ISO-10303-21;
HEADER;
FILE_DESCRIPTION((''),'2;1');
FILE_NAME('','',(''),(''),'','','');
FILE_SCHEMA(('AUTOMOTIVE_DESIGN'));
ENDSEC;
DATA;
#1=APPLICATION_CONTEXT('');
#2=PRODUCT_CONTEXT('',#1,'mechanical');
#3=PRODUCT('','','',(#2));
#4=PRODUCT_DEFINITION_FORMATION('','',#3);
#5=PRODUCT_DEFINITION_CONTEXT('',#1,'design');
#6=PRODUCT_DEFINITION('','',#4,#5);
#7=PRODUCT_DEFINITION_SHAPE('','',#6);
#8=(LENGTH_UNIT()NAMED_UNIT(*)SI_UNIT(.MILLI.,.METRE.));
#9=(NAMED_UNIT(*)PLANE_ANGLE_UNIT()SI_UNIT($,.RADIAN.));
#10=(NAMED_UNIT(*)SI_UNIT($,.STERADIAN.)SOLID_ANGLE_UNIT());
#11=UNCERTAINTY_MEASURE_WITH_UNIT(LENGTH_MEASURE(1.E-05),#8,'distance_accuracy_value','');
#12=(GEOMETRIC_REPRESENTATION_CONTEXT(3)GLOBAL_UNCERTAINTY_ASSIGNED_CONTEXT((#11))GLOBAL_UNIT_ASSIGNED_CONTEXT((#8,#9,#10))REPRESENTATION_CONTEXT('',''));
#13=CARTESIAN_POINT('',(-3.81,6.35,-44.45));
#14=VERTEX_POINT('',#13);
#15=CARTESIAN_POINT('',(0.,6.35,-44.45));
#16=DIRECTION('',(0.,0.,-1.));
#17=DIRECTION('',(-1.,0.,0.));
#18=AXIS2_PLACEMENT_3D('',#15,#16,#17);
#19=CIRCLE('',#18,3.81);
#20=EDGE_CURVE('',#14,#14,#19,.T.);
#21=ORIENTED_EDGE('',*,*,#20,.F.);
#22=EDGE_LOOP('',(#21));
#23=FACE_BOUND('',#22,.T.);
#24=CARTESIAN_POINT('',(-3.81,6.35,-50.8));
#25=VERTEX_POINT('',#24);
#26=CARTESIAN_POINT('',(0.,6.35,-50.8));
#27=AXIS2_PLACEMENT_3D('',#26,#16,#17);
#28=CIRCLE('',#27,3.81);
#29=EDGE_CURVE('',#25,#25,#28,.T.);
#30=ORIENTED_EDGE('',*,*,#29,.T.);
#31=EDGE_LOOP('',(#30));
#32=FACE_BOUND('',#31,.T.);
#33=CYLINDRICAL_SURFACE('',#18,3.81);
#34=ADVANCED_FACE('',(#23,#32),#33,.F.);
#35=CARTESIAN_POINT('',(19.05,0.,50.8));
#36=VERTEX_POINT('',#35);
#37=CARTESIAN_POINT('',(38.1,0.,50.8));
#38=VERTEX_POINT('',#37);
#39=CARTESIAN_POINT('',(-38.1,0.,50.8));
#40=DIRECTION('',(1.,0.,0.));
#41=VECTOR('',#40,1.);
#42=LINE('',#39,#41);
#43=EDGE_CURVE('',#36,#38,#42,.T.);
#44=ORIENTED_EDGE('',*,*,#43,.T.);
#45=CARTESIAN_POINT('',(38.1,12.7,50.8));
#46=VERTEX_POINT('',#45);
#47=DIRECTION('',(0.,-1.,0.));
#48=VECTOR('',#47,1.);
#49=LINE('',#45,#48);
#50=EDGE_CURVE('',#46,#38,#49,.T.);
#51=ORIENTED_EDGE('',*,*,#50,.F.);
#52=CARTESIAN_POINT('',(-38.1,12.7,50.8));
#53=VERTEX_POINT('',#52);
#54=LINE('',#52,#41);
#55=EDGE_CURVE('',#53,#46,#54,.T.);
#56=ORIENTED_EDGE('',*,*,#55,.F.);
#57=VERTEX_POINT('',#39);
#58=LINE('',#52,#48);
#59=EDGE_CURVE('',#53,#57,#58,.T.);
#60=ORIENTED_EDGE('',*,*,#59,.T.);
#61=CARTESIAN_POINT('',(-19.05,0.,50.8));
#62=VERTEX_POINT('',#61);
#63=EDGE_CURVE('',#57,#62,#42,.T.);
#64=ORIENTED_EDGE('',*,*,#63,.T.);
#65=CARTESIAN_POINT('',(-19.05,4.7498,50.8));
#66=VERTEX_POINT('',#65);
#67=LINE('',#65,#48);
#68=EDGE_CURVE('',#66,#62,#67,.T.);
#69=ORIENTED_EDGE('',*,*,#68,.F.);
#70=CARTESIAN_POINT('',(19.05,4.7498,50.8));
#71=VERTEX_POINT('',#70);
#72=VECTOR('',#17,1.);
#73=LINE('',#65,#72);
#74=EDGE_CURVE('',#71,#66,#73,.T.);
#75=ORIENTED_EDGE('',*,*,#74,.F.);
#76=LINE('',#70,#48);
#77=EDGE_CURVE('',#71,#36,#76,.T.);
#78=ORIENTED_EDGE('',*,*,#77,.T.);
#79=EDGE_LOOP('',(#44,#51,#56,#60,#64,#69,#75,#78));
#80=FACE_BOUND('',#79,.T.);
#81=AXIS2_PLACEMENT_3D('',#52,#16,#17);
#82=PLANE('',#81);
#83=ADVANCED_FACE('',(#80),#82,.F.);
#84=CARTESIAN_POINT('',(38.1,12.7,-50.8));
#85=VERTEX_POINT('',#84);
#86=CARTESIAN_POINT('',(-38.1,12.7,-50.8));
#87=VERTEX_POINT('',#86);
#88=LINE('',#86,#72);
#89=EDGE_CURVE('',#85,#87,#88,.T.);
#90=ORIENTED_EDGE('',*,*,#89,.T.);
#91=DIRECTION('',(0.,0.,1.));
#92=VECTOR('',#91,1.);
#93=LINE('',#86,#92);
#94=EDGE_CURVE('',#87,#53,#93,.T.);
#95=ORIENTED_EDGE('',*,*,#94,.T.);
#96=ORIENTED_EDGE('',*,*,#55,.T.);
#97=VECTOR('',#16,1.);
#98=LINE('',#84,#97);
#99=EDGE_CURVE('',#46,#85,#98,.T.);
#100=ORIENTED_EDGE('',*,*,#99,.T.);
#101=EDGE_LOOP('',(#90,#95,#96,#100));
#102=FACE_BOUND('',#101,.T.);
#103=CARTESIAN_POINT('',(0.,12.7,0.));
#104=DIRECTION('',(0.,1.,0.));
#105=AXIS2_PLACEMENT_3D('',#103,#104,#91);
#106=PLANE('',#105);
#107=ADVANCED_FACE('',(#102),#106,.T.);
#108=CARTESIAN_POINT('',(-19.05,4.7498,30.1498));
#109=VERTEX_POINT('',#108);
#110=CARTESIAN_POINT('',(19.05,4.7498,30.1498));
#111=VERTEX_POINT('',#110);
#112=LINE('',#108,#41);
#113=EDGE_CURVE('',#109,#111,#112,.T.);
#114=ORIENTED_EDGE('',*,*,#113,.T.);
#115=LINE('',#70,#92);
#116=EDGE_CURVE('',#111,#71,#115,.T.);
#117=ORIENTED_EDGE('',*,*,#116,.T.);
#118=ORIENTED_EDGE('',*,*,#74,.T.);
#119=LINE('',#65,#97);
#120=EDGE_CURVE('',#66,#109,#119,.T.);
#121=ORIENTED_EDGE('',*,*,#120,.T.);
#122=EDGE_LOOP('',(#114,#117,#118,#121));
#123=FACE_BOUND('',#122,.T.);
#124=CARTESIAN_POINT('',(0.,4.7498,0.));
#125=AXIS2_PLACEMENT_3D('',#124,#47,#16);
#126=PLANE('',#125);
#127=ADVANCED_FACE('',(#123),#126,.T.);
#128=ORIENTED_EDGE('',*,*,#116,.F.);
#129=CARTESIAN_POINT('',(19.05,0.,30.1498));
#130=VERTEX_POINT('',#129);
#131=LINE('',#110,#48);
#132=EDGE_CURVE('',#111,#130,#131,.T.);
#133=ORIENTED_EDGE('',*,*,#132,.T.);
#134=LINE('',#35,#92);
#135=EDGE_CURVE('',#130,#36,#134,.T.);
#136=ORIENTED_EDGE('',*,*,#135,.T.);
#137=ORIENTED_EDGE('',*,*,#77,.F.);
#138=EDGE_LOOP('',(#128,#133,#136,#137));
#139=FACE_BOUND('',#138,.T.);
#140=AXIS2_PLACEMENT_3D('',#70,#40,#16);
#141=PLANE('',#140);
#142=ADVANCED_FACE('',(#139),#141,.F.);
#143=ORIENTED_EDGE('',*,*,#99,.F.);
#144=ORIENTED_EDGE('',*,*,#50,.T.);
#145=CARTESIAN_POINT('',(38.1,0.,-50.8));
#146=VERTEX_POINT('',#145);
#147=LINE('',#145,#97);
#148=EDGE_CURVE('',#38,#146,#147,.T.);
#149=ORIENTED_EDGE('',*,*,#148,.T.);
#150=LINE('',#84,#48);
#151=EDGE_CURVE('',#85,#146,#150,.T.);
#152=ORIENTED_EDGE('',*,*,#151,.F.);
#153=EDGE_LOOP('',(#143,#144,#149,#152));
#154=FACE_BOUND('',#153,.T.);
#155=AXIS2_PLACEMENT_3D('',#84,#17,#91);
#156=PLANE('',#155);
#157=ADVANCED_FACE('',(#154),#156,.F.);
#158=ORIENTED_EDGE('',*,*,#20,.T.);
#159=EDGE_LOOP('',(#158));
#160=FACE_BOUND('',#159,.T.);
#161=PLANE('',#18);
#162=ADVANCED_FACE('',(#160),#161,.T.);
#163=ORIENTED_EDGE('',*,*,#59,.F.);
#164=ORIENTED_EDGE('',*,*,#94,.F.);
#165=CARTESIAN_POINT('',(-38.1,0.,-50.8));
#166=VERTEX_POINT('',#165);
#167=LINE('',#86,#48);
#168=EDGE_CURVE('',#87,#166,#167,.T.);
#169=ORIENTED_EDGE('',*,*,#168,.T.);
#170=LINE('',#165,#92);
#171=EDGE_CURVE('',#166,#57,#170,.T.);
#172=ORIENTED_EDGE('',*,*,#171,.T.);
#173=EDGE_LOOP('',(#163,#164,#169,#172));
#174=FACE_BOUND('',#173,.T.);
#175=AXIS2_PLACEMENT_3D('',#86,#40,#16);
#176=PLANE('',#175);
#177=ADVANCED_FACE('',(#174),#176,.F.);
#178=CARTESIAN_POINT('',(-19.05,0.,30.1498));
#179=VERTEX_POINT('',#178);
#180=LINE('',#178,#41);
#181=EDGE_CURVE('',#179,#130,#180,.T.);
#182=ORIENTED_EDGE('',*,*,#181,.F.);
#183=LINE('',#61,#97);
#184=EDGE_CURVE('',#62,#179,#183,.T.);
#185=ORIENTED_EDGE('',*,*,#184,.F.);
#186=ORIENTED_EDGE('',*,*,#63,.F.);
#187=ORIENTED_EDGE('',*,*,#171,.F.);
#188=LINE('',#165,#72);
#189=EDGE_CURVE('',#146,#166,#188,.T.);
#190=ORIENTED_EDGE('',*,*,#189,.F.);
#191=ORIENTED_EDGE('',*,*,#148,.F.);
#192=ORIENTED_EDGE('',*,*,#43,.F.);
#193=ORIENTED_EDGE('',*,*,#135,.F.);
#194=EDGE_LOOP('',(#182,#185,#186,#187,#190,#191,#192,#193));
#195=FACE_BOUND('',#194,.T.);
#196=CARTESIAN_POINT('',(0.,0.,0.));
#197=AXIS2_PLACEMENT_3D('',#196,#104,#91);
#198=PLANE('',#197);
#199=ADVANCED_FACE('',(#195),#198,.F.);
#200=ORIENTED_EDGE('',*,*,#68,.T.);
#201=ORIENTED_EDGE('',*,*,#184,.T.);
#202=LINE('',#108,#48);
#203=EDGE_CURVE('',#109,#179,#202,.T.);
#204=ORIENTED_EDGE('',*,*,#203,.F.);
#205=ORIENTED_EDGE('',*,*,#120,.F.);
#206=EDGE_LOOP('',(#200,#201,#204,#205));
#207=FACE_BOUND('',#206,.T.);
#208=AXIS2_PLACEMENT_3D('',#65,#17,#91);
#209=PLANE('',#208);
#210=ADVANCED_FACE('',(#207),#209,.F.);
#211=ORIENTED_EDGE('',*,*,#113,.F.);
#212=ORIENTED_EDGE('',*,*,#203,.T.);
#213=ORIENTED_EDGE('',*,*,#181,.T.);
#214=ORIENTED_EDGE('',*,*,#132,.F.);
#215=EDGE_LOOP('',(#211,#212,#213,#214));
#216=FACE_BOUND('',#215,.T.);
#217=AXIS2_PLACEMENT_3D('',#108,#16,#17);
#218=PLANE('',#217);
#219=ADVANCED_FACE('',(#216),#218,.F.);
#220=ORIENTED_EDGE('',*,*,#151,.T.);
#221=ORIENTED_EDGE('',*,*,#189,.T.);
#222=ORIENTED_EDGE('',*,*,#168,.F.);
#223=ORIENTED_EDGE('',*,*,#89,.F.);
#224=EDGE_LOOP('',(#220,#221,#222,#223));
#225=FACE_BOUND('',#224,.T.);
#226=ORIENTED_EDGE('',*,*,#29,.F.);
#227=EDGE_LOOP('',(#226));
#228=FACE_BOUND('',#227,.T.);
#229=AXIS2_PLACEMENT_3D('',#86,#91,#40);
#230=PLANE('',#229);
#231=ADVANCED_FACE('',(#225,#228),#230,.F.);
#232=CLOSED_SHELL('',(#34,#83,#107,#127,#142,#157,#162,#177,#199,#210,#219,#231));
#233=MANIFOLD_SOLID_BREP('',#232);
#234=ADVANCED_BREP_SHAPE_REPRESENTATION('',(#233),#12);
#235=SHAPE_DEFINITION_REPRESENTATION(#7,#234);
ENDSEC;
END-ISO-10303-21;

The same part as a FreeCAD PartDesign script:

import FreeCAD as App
import Part
import Sketcher
from FreeCAD import Vector
Q = App.Units.Quantity


def add_polygon(sketch, points):
    """Adds a closed chain of lines whose ends are joined by coincident constraints."""
    first, n = sketch.GeometryCount, len(points)
    for a, b in zip(points, points[1:] + points[:1]):
        sketch.addGeometry(Part.LineSegment(App.Vector(*a, 0), App.Vector(*b, 0)), False)
    for i in range(n):
        sketch.addConstraint(Sketcher.Constraint("Coincident", first + i, 2, first + (i + 1) % n, 1))

doc = App.newDocument("Part")
params = doc.addObject("Spreadsheet::Sheet", "Params")
for row, (alias, value) in enumerate([
    ("sketch1_width", "3 in"),
    ("sketch1_height", "4 in"),
    ("pad1_length", "0.5 in"),
    ("sketch2_width", "1.5 in"),
    ("sketch2_height", "0.813 in"),
    ("pocket1_length", "0.187 in"),
    ("sketch3_diameter", "0.3 in"),
    ("pocket2_length", "0.25 in"),
], start=1):
    params.set(f"A{row}", alias)
    params.set(f"B{row}", "=" + value)
    params.setAlias(f"B{row}", alias)

body = doc.addObject("PartDesign::Body", "Body")

# Sketch on XZ plane
sketch1 = body.newObject("Sketcher::SketchObject", "Sketch")
sketch1.AttachmentSupport = (doc.getObject("XZ_Plane"), [""])
sketch1.MapMode = "FlatFace"
add_polygon(sketch1, [(-38, -51), (-38, 51), (38, 51), (38, -51)])  # lines 0-3
sketch1.addConstraint(Sketcher.Constraint("Vertical", 0))
sketch1.addConstraint(Sketcher.Constraint("Horizontal", 1))
sketch1.addConstraint(Sketcher.Constraint("Vertical", 2))
sketch1.addConstraint(Sketcher.Constraint("Horizontal", 3))
sketch1.addConstraint(Sketcher.Constraint("Symmetric", 0, 2, 2, 2, -1, 1))
sketch1.addConstraint(Sketcher.Constraint("DistanceX", 1, 1, 1, 2, Q("3 in")))
sketch1.addConstraint(Sketcher.Constraint("DistanceY", 0, 1, 0, 2, Q("4 in")))
sketch1.setExpression("Constraints[9]", "Params.sketch1_width")
sketch1.setExpression("Constraints[10]", "Params.sketch1_height")
pad1 = body.newObject("PartDesign::Pad", "Pad")
pad1.Profile = sketch1
pad1.setExpression("Length", "Params.pad1_length")
pad1.Reversed = True

# Sketch on XZ plane
sketch2 = body.newObject("Sketcher::SketchObject", "Sketch001")
sketch2.AttachmentSupport = (doc.getObject("XZ_Plane"), [""])
sketch2.MapMode = "FlatFace"
add_polygon(sketch2, [(-19, 51), (-19, 30), (19, 30), (19, 51)])  # lines 0-3
sketch2.addConstraint(Sketcher.Constraint("Vertical", 0))
sketch2.addConstraint(Sketcher.Constraint("Horizontal", 1))
sketch2.addConstraint(Sketcher.Constraint("Vertical", 2))
sketch2.addConstraint(Sketcher.Constraint("Horizontal", 3))
sketch2.addConstraint(Sketcher.Constraint("DistanceX", 1, 1, 1, 2, Q("1.5 in")))
sketch2.addConstraint(Sketcher.Constraint("DistanceY", -1, 1, 2, 2, Q("2 in")))
sketch2.addConstraint(Sketcher.Constraint("DistanceY", 0, 2, 0, 1, Q("0.813 in")))
sketch2.addConstraint(Sketcher.Constraint("DistanceX", 0, 2, -1, 1, Q("0.75 in")))
sketch2.setExpression("Constraints[8]", "Params.sketch2_width")
sketch2.setExpression("Constraints[10]", "Params.sketch2_height")
pocket1 = body.newObject("PartDesign::Pocket", "Pocket")
pocket1.Profile = sketch2
pocket1.setExpression("Length", "Params.pocket1_length")

# Sketch on XY plane
sketch3 = body.newObject("Sketcher::SketchObject", "Sketch002")
sketch3.AttachmentSupport = (doc.getObject("XY_Plane"), [""])
sketch3.MapMode = "FlatFace"
sketch3.AttachmentOffset = App.Placement(Vector(0, 0, -2 * 25.4), App.Rotation())
sketch3.addGeometry(Part.Circle(Vector(0, 6.3, 0), Vector(0, 0, 1), 3.8), False)
sketch3.addConstraint(Sketcher.Constraint("PointOnObject", 0, 3, -2))
sketch3.addConstraint(Sketcher.Constraint("Diameter", 0, Q("0.3 in")))
sketch3.addConstraint(Sketcher.Constraint("DistanceY", -1, 1, 0, 3, Q("0.25 in")))
sketch3.setExpression("Constraints[1]", "Params.sketch3_diameter")
pocket2 = body.newObject("PartDesign::Pocket", "Pocket001")
pocket2.Profile = sketch3
pocket2.setExpression("Length", "Params.pocket2_length")
pocket2.Reversed = True

doc.recompute()
